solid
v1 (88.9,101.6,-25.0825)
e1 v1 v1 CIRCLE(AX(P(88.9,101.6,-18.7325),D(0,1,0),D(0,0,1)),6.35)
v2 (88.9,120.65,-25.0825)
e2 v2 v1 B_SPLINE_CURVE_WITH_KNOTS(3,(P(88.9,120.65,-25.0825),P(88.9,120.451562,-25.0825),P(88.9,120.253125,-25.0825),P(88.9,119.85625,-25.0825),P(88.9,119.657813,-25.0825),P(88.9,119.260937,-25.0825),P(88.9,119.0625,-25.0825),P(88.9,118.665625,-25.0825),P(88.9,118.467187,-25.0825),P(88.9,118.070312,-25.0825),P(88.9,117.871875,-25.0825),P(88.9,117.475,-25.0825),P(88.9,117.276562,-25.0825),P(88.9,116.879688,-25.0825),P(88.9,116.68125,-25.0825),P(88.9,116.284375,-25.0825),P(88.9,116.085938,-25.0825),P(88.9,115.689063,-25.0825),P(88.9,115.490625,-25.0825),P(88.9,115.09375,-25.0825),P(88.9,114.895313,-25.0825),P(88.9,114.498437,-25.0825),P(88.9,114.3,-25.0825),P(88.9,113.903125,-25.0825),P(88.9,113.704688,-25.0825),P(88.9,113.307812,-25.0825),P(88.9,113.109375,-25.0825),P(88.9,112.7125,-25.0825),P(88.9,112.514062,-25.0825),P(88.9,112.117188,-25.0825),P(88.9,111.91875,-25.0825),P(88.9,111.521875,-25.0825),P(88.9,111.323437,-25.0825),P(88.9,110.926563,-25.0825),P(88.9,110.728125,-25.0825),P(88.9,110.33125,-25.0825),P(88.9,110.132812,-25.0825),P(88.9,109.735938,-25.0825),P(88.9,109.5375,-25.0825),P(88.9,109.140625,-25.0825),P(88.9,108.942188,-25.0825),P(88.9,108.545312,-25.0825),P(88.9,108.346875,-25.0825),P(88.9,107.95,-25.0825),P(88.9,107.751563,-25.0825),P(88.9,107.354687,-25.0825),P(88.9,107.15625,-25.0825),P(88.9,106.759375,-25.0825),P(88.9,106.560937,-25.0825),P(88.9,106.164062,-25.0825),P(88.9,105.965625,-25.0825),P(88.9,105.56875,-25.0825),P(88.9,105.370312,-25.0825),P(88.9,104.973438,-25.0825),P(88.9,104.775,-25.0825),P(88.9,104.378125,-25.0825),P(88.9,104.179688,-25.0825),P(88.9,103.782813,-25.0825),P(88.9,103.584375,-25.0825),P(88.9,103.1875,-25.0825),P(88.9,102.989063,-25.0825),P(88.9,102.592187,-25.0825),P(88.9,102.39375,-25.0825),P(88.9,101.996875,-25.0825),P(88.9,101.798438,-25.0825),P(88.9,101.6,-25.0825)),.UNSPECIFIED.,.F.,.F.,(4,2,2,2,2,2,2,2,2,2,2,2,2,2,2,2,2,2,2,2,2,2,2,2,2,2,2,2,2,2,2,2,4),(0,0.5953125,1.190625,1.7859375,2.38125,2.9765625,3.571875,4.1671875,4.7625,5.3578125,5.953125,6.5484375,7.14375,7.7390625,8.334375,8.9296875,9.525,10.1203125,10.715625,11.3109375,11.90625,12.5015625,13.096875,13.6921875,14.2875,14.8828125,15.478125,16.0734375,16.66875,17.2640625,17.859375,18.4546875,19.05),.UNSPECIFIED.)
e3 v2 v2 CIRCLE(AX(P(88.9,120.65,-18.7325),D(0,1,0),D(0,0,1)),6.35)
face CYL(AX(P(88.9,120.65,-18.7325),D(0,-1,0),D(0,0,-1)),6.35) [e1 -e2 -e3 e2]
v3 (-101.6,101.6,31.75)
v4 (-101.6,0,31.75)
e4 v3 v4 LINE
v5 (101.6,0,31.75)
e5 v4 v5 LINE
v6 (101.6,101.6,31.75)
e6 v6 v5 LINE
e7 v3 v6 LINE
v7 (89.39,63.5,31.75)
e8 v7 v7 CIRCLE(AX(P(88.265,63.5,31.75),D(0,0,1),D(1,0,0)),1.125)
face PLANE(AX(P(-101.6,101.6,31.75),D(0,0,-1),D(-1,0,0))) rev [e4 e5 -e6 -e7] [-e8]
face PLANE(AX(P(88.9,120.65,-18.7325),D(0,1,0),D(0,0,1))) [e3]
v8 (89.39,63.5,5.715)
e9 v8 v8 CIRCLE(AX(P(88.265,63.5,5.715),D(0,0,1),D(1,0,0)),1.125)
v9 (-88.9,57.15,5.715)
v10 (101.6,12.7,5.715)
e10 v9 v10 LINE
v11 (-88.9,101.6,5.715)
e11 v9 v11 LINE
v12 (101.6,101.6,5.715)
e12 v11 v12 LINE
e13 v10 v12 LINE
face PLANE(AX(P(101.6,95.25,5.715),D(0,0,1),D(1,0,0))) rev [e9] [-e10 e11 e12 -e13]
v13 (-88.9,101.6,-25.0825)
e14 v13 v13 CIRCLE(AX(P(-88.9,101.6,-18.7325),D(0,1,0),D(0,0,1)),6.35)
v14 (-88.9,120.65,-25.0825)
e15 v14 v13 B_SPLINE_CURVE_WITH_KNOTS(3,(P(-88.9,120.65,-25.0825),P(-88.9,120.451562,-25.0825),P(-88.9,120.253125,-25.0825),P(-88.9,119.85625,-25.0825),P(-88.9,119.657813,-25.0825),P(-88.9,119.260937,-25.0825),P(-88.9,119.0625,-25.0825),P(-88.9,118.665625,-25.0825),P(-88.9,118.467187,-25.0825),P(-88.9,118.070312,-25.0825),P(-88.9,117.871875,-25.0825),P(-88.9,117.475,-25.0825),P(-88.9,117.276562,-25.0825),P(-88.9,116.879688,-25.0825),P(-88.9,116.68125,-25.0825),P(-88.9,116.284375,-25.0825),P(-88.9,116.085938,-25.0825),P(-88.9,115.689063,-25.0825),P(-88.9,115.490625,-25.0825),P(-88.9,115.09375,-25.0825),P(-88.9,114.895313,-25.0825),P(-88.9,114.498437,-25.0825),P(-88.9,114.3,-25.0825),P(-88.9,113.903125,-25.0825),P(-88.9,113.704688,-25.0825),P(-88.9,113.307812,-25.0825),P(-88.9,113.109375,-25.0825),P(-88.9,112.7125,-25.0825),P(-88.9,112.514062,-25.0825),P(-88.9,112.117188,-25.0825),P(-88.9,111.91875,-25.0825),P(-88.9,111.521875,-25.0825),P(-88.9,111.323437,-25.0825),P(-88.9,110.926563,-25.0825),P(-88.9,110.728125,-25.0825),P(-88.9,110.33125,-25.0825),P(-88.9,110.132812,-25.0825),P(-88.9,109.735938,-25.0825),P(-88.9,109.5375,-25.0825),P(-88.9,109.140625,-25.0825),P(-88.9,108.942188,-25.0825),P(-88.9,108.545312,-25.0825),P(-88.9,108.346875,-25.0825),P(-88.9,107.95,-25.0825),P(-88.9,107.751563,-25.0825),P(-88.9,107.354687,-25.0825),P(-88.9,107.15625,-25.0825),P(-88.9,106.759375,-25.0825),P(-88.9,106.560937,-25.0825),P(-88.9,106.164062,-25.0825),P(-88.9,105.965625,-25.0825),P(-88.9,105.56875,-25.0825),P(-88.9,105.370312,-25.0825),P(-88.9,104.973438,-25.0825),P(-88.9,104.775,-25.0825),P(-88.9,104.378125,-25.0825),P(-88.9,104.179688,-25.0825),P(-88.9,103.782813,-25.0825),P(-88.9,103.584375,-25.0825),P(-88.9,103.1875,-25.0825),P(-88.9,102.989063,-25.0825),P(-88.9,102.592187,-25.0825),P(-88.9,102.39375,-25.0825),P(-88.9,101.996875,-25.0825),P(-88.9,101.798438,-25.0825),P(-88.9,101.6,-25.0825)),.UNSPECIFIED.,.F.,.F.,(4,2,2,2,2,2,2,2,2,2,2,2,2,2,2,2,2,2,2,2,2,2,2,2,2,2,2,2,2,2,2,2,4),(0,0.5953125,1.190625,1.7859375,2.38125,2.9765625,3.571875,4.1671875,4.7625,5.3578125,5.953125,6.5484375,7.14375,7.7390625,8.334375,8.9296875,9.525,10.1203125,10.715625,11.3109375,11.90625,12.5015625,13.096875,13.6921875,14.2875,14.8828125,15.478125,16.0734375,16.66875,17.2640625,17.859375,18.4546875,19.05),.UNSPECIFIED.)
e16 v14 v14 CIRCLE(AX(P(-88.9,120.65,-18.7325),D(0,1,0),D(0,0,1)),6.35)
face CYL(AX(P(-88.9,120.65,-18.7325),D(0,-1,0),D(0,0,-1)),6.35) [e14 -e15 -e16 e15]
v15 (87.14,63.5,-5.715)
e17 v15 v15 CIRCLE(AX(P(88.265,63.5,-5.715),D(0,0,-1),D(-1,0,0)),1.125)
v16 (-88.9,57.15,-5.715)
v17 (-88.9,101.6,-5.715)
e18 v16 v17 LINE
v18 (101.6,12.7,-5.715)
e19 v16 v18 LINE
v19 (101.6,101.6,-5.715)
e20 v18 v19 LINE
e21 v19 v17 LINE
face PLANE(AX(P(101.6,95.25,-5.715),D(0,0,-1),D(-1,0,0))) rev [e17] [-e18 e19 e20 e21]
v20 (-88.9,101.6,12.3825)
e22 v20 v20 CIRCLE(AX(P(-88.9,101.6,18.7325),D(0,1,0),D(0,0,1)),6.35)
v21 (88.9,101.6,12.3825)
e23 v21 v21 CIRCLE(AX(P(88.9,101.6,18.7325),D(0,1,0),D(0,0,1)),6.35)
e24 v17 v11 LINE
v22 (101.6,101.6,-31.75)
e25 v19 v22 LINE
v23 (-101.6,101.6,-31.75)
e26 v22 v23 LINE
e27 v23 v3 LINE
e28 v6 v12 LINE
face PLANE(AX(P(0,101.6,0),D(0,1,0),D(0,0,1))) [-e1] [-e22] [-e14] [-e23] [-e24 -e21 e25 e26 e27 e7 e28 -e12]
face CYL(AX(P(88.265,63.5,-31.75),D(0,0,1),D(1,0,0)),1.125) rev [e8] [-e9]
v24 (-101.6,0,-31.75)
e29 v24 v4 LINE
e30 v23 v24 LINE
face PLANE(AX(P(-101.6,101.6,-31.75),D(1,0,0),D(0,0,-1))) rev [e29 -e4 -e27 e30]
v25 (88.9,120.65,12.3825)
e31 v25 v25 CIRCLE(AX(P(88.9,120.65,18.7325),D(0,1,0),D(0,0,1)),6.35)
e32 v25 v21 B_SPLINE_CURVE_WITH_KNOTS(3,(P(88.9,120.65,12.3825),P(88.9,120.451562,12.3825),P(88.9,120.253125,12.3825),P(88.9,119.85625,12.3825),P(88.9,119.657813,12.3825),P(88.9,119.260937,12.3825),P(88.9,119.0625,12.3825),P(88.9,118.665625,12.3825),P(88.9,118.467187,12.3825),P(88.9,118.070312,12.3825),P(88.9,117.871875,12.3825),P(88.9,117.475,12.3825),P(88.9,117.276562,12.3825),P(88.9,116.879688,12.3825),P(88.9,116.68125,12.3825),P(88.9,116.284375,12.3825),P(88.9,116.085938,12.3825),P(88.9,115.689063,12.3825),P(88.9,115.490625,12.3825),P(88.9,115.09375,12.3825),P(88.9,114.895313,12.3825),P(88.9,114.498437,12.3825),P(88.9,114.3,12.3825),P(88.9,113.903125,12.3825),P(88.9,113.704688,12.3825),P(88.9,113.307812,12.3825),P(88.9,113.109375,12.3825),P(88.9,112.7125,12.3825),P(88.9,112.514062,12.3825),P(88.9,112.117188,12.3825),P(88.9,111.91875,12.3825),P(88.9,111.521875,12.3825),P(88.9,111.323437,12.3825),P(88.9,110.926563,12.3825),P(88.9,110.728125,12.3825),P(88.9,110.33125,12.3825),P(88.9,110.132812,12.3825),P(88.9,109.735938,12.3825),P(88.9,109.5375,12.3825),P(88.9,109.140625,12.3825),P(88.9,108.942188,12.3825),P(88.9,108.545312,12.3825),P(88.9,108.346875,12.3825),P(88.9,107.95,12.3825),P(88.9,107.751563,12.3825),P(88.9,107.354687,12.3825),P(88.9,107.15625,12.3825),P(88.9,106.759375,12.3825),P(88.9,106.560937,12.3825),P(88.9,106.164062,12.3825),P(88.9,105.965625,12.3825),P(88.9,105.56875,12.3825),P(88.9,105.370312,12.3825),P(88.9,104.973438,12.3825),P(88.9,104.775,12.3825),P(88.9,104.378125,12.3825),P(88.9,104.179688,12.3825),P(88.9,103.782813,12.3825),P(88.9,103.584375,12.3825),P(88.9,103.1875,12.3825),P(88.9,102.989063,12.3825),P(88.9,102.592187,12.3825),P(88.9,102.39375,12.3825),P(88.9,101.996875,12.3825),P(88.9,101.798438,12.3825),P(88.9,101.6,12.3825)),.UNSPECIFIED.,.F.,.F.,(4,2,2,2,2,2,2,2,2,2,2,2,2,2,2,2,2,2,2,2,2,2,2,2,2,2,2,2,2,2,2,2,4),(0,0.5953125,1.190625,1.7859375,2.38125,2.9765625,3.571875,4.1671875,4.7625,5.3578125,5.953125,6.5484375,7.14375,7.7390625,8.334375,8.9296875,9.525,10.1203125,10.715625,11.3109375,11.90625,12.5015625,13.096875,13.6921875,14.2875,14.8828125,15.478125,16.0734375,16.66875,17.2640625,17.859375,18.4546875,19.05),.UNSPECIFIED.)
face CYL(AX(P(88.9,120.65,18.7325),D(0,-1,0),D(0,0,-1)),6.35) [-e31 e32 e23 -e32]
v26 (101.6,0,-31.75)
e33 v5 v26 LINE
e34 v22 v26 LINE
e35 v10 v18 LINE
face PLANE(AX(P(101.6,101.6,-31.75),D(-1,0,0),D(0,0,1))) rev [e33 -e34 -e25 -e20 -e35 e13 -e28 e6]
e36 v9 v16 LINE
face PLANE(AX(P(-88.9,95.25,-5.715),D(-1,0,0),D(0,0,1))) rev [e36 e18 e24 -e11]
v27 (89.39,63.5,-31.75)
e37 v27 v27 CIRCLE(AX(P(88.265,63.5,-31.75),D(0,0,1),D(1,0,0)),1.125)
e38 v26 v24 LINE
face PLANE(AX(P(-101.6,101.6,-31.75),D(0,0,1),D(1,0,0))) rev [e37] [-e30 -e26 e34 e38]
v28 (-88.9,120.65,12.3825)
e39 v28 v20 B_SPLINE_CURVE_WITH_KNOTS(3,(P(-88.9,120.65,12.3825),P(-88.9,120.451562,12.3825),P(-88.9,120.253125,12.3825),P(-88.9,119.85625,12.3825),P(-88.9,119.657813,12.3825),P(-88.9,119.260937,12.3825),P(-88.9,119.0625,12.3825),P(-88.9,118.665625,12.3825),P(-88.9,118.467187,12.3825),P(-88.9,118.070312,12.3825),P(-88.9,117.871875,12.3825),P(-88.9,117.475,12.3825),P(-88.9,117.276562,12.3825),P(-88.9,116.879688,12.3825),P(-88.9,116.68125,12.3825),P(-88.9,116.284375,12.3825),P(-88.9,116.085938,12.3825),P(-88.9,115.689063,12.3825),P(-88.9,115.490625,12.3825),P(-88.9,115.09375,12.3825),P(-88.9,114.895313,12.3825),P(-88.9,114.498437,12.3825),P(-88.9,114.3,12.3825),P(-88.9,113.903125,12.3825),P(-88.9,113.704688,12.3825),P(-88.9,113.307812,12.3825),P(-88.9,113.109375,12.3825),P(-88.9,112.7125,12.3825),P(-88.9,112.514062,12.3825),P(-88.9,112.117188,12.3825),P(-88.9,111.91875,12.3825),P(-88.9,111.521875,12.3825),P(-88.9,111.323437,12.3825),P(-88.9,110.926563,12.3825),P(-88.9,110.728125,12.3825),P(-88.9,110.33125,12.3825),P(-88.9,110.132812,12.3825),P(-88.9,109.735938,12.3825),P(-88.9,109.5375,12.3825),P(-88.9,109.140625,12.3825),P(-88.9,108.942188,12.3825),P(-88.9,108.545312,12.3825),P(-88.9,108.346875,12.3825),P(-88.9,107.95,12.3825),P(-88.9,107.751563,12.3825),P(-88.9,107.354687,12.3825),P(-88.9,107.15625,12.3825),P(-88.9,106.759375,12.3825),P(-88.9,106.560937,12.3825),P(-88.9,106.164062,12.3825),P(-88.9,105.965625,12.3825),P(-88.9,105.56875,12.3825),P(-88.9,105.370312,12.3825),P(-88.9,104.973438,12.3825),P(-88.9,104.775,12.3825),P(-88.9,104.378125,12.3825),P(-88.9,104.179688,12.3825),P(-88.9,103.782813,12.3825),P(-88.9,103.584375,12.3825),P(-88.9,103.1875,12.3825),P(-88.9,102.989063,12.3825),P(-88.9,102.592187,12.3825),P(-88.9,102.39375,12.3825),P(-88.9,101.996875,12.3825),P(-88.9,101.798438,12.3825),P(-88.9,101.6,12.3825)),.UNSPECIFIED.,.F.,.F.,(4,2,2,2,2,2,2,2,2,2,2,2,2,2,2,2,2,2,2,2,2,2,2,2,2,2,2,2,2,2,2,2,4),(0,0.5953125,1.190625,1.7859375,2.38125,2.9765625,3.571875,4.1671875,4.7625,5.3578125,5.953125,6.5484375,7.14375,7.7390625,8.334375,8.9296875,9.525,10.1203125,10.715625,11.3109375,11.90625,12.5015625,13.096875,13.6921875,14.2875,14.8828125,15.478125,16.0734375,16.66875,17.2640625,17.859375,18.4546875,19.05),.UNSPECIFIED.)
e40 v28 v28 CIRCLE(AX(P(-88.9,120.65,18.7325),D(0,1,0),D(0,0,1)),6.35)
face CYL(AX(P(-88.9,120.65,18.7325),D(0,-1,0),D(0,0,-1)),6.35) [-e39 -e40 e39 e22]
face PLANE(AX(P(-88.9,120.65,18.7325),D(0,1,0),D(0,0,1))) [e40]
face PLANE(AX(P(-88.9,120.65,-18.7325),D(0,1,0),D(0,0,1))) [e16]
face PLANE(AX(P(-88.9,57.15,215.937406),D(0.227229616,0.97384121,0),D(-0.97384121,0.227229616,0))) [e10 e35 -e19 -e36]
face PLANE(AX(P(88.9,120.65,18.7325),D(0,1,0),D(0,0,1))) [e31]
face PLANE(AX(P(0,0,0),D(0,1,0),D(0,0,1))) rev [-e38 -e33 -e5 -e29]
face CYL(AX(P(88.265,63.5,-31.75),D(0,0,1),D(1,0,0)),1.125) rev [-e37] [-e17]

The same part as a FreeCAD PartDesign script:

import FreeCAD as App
import Part
import Sketcher
Q = App.Units.Quantity

doc = App.newDocument("Part")
body = doc.addObject("PartDesign::Body", "Body")

# Sketch on XZ plane
sketch1 = body.newObject("Sketcher::SketchObject", "Sketch")
sketch1.AttachmentSupport = (doc.getObject("XZ_Plane"), [""])
sketch1.MapMode = "FlatFace"
sketch1.addGeometry([
    Part.LineSegment(App.Vector(-102, -32, 0), App.Vector(-102, 32, 0)),
    Part.LineSegment(App.Vector(-102, 32, 0), App.Vector(102, 32, 0)),
    Part.LineSegment(App.Vector(102, 32, 0), App.Vector(102, -32, 0)),
    Part.LineSegment(App.Vector(102, -32, 0), App.Vector(-102, -32, 0)),
], False)
sketch1.addConstraint([
    Sketcher.Constraint("Coincident", 0, 2, 1, 1),
    Sketcher.Constraint("Coincident", 1, 2, 2, 1),
    Sketcher.Constraint("Coincident", 2, 2, 3, 1),
    Sketcher.Constraint("Coincident", 3, 2, 0, 1),
    Sketcher.Constraint("Vertical", 0),
    Sketcher.Constraint("Horizontal", 1),
    Sketcher.Constraint("Vertical", 2),
    Sketcher.Constraint("Horizontal", 3),
    Sketcher.Constraint("Symmetric", 0, 2, 2, 2, -1, 1),
    Sketcher.Constraint("DistanceX", 1, 1, 1, 2, Q("8 in")),
    Sketcher.Constraint("DistanceY", 0, 1, 0, 2, Q("2.5 in")),
])
pad1 = body.newObject("PartDesign::Pad", "Pad")
pad1.Profile = sketch1
pad1.Length = Q("4 in")
pad1.Reversed = True

# Sketch on XZ plane
sketch2 = body.newObject("Sketcher::SketchObject", "Sketch001")
sketch2.AttachmentSupport = (doc.getObject("XZ_Plane"), [""])
sketch2.MapMode = "FlatFace"
sketch2.AttachmentOffset = App.Placement(App.Vector(0, 0, -4 * 25.4), App.Rotation())
sketch2.addGeometry([
    Part.LineSegment(App.Vector(-89, -6, 0), App.Vector(-89, 6, 0)),
    Part.LineSegment(App.Vector(-89, 6, 0), App.Vector(102, 6, 0)),
    Part.LineSegment(App.Vector(102, 6, 0), App.Vector(102, -6, 0)),
    Part.LineSegment(App.Vector(102, -6, 0), App.Vector(-89, -6, 0)),
], False)
sketch2.addConstraint([
    Sketcher.Constraint("Coincident", 0, 2, 1, 1),
    Sketcher.Constraint("Coincident", 1, 2, 2, 1),
    Sketcher.Constraint("Coincident", 2, 2, 3, 1),
    Sketcher.Constraint("Coincident", 3, 2, 0, 1),
    Sketcher.Constraint("Vertical", 0),
    Sketcher.Constraint("Horizontal", 1),
    Sketcher.Constraint("Vertical", 2),
    Sketcher.Constraint("Horizontal", 3),
    Sketcher.Constraint("DistanceX", 1, 1, 1, 2, Q("7.5 in")),
    Sketcher.Constraint("DistanceX", -1, 1, 1, 2, Q("4 in")),
    Sketcher.Constraint("DistanceY", 0, 1, 0, 2, Q("0.45 in")),
    Sketcher.Constraint("DistanceY", -1, 1, 0, 2, Q("0.225 in")),
])
pocket1 = body.newObject("PartDesign::Pocket", "Pocket")
pocket1.Profile = sketch2
pocket1.Length = Q("0.25 in")
pocket1.Reversed = True

# Sketch on XY plane
sketch3 = body.newObject("Sketcher::SketchObject", "Sketch002")
sketch3.AttachmentSupport = (doc.getObject("XY_Plane"), [""])
sketch3.MapMode = "FlatFace"
sketch3.AttachmentOffset = App.Placement(App.Vector(0, 0, -0.225 * 25.4), App.Rotation())
sketch3.addGeometry([
    Part.LineSegment(App.Vector(-89, 102, 0), App.Vector(-89, 57, 0)),
    Part.LineSegment(App.Vector(-89, 57, 0), App.Vector(102, 13, 0)),
    Part.LineSegment(App.Vector(102, 13, 0), App.Vector(102, 102, 0)),
    Part.LineSegment(App.Vector(102, 102, 0), App.Vector(-89, 102, 0)),
], False)
sketch3.addConstraint([
    Sketcher.Constraint("Coincident", 0, 2, 1, 1),
    Sketcher.Constraint("Coincident", 1, 2, 2, 1),
    Sketcher.Constraint("Coincident", 2, 2, 3, 1),
    Sketcher.Constraint("Coincident", 3, 2, 0, 1),
    Sketcher.Constraint("Vertical", 0),
    Sketcher.Constraint("Vertical", 2),
    Sketcher.Constraint("Horizontal", 3),
    Sketcher.Constraint("DistanceX", 3, 2, 3, 1, Q("7.5 in")),
    Sketcher.Constraint("DistanceY", 2, 1, 2, 2, Q("3.5 in")),
    Sketcher.Constraint("DistanceX", -1, 1, 1, 2, Q("4 in")),
    Sketcher.Constraint("DistanceY", -1, 1, 2, 2, Q("4 in")),
    Sketcher.Constraint("DistanceY", 0, 2, 0, 1, Q("1.75 in")),
])
pocket2 = body.newObject("PartDesign::Pocket", "Pocket001")
pocket2.Profile = sketch3
pocket2.Length = Q("0.45 in")
pocket2.Reversed = True

# Sketch on XZ plane
sketch4 = body.newObject("Sketcher::SketchObject", "Sketch003")
sketch4.AttachmentSupport = (doc.getObject("XZ_Plane"), [""])
sketch4.MapMode = "FlatFace"
sketch4.AttachmentOffset = App.Placement(App.Vector(0, 0, -4 * 25.4), App.Rotation())
sketch4.addGeometry([
    Part.Circle(App.Vector(89, 19, 0), App.Vector(0, 0, 1), 6),
    Part.Circle(App.Vector(-89, 19, 0), App.Vector(0, 0, 1), 6),
    Part.Circle(App.Vector(-89, -19, 0), App.Vector(0, 0, 1), 6),
    Part.Circle(App.Vector(89, -19, 0), App.Vector(0, 0, 1), 6),
], False)
sketch4.addConstraint([
    Sketcher.Constraint("Equal", 0, 1),
    Sketcher.Constraint("Equal", 1, 2),
    Sketcher.Constraint("Equal", 2, 3),
    Sketcher.Constraint("Symmetric", 0, 3, 2, 3, -1, 1),
    Sketcher.Constraint("Symmetric", 1, 3, 3, 3, -1, 1),
    Sketcher.Constraint("Symmetric", 0, 3, 1, 3, -2),
    Sketcher.Constraint("Diameter", 0, Q("0.5 in")),
    Sketcher.Constraint("DistanceX", 1, 3, 0, 3, Q("7 in")),
    Sketcher.Constraint("DistanceY", 2, 3, 1, 3, Q("1.475 in")),
])
pad2 = body.newObject("PartDesign::Pad", "Pad001")
pad2.Profile = sketch4
pad2.Length = Q("0.75 in")
pad2.Reversed = True

# Sketch on XY plane
sketch5 = body.newObject("Sketcher::SketchObject", "Sketch004")
sketch5.AttachmentSupport = (doc.getObject("XY_Plane"), [""])
sketch5.MapMode = "FlatFace"
sketch5.AttachmentOffset = App.Placement(App.Vector(0, 0, -0.225 * 25.4), App.Rotation())
sketch5.addGeometry(Part.Circle(App.Vector(88.3, 63.5, 0), App.Vector(0, 0, 1), 1.1), False)
sketch5.addConstraint([
    Sketcher.Constraint("DistanceY", -1, 1, 0, 3, Q("2.5 in")),
    Sketcher.Constraint("Diameter", 0, Q("2.25 mm")),
    Sketcher.Constraint("DistanceX", -1, 1, 0, 3, Q("3.475 in")),
])
pocket3 = body.newObject("PartDesign::Pocket", "Pocket002")
pocket3.Profile = sketch5
pocket3.Type = "ThroughAll"
pocket3.Midplane = True

doc.recompute()
